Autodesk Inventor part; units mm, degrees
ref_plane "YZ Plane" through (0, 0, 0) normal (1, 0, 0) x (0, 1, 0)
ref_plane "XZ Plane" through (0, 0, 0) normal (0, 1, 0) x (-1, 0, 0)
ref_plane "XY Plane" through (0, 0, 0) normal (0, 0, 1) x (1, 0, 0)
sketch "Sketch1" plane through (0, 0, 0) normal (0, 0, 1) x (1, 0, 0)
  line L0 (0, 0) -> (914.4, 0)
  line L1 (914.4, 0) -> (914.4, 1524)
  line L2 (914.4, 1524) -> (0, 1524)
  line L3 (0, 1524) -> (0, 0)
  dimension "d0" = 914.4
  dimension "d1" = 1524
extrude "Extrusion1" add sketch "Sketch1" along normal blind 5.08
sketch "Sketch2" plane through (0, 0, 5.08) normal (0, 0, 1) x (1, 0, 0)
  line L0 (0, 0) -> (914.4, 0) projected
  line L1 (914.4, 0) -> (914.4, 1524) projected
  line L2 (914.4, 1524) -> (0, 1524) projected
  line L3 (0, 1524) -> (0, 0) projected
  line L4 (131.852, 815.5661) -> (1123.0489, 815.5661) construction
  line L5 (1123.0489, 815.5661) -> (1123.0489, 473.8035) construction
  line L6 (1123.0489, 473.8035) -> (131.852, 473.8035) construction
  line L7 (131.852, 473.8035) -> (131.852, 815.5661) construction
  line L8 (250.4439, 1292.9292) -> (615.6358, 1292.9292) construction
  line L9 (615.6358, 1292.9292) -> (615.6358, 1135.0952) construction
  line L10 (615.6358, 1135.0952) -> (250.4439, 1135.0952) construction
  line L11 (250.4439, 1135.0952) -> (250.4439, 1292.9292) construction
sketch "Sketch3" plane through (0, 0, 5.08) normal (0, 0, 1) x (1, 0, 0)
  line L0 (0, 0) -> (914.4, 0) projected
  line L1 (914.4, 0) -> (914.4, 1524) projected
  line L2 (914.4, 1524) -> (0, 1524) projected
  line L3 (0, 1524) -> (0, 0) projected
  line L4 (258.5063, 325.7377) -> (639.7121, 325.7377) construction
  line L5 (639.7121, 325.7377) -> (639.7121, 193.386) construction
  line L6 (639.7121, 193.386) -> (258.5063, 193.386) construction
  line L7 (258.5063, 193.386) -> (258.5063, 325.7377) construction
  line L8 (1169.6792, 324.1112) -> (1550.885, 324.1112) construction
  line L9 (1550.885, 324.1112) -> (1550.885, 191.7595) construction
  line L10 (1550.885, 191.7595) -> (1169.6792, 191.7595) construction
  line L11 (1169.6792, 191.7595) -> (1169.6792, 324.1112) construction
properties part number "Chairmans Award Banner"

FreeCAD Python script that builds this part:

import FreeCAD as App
import Part
import Sketcher
from FreeCAD import Vector
Q = App.Units.Quantity

doc = App.newDocument("Part")
params = doc.addObject("Spreadsheet::Sheet", "Params")
for row, (alias, value) in enumerate([
    ("sketch1_width", "36 in"),
    ("sketch1_height", "60 in"),
    ("pad1_length", "0.2 in"),
], start=1):
    params.set(f"A{row}", alias)
    params.set(f"B{row}", "=" + value)
    params.setAlias(f"B{row}", alias)

body = doc.addObject("PartDesign::Body", "Body")

sketch1 = body.newObject("Sketcher::SketchObject", "Sketch")
sketch1.AttachmentSupport = (doc.getObject("XY_Plane"), [""])
sketch1.MapMode = "FlatFace"
sketch1.addGeometry(Part.LineSegment(Vector(0, 1524, 0), Vector(0, 0, 0)), False)
sketch1.addGeometry(Part.LineSegment(Vector(0, 0, 0), Vector(914, 0, 0)), False)
sketch1.addGeometry(Part.LineSegment(Vector(914, 0, 0), Vector(914, 1524, 0)), False)
sketch1.addGeometry(Part.LineSegment(Vector(914, 1524, 0), Vector(0, 1524, 0)), False)
sketch1.addConstraint(Sketcher.Constraint("Coincident", 0, 2, 1, 1))
sketch1.addConstraint(Sketcher.Constraint("Coincident", 1, 2, 2, 1))
sketch1.addConstraint(Sketcher.Constraint("Coincident", 2, 2, 3, 1))
sketch1.addConstraint(Sketcher.Constraint("Coincident", 3, 2, 0, 1))
sketch1.addConstraint(Sketcher.Constraint("Vertical", 0))
sketch1.addConstraint(Sketcher.Constraint("Horizontal", 1))
sketch1.addConstraint(Sketcher.Constraint("Vertical", 2))
sketch1.addConstraint(Sketcher.Constraint("Horizontal", 3))
sketch1.addConstraint(Sketcher.Constraint("Coincident", 0, 2, -1, 1))
sketch1.addConstraint(Sketcher.Constraint("DistanceX", 1, 1, 1, 2, Q("36 in")))
sketch1.addConstraint(Sketcher.Constraint("DistanceY", 0, 2, 0, 1, Q("60 in")))
sketch1.setExpression("Constraints[9]", "Params.sketch1_width")
sketch1.setExpression("Constraints[10]", "Params.sketch1_height")
pad1 = body.newObject("PartDesign::Pad", "Pad")
pad1.Profile = sketch1
pad1.setExpression("Length", "Params.pad1_length")

doc.recompute()
